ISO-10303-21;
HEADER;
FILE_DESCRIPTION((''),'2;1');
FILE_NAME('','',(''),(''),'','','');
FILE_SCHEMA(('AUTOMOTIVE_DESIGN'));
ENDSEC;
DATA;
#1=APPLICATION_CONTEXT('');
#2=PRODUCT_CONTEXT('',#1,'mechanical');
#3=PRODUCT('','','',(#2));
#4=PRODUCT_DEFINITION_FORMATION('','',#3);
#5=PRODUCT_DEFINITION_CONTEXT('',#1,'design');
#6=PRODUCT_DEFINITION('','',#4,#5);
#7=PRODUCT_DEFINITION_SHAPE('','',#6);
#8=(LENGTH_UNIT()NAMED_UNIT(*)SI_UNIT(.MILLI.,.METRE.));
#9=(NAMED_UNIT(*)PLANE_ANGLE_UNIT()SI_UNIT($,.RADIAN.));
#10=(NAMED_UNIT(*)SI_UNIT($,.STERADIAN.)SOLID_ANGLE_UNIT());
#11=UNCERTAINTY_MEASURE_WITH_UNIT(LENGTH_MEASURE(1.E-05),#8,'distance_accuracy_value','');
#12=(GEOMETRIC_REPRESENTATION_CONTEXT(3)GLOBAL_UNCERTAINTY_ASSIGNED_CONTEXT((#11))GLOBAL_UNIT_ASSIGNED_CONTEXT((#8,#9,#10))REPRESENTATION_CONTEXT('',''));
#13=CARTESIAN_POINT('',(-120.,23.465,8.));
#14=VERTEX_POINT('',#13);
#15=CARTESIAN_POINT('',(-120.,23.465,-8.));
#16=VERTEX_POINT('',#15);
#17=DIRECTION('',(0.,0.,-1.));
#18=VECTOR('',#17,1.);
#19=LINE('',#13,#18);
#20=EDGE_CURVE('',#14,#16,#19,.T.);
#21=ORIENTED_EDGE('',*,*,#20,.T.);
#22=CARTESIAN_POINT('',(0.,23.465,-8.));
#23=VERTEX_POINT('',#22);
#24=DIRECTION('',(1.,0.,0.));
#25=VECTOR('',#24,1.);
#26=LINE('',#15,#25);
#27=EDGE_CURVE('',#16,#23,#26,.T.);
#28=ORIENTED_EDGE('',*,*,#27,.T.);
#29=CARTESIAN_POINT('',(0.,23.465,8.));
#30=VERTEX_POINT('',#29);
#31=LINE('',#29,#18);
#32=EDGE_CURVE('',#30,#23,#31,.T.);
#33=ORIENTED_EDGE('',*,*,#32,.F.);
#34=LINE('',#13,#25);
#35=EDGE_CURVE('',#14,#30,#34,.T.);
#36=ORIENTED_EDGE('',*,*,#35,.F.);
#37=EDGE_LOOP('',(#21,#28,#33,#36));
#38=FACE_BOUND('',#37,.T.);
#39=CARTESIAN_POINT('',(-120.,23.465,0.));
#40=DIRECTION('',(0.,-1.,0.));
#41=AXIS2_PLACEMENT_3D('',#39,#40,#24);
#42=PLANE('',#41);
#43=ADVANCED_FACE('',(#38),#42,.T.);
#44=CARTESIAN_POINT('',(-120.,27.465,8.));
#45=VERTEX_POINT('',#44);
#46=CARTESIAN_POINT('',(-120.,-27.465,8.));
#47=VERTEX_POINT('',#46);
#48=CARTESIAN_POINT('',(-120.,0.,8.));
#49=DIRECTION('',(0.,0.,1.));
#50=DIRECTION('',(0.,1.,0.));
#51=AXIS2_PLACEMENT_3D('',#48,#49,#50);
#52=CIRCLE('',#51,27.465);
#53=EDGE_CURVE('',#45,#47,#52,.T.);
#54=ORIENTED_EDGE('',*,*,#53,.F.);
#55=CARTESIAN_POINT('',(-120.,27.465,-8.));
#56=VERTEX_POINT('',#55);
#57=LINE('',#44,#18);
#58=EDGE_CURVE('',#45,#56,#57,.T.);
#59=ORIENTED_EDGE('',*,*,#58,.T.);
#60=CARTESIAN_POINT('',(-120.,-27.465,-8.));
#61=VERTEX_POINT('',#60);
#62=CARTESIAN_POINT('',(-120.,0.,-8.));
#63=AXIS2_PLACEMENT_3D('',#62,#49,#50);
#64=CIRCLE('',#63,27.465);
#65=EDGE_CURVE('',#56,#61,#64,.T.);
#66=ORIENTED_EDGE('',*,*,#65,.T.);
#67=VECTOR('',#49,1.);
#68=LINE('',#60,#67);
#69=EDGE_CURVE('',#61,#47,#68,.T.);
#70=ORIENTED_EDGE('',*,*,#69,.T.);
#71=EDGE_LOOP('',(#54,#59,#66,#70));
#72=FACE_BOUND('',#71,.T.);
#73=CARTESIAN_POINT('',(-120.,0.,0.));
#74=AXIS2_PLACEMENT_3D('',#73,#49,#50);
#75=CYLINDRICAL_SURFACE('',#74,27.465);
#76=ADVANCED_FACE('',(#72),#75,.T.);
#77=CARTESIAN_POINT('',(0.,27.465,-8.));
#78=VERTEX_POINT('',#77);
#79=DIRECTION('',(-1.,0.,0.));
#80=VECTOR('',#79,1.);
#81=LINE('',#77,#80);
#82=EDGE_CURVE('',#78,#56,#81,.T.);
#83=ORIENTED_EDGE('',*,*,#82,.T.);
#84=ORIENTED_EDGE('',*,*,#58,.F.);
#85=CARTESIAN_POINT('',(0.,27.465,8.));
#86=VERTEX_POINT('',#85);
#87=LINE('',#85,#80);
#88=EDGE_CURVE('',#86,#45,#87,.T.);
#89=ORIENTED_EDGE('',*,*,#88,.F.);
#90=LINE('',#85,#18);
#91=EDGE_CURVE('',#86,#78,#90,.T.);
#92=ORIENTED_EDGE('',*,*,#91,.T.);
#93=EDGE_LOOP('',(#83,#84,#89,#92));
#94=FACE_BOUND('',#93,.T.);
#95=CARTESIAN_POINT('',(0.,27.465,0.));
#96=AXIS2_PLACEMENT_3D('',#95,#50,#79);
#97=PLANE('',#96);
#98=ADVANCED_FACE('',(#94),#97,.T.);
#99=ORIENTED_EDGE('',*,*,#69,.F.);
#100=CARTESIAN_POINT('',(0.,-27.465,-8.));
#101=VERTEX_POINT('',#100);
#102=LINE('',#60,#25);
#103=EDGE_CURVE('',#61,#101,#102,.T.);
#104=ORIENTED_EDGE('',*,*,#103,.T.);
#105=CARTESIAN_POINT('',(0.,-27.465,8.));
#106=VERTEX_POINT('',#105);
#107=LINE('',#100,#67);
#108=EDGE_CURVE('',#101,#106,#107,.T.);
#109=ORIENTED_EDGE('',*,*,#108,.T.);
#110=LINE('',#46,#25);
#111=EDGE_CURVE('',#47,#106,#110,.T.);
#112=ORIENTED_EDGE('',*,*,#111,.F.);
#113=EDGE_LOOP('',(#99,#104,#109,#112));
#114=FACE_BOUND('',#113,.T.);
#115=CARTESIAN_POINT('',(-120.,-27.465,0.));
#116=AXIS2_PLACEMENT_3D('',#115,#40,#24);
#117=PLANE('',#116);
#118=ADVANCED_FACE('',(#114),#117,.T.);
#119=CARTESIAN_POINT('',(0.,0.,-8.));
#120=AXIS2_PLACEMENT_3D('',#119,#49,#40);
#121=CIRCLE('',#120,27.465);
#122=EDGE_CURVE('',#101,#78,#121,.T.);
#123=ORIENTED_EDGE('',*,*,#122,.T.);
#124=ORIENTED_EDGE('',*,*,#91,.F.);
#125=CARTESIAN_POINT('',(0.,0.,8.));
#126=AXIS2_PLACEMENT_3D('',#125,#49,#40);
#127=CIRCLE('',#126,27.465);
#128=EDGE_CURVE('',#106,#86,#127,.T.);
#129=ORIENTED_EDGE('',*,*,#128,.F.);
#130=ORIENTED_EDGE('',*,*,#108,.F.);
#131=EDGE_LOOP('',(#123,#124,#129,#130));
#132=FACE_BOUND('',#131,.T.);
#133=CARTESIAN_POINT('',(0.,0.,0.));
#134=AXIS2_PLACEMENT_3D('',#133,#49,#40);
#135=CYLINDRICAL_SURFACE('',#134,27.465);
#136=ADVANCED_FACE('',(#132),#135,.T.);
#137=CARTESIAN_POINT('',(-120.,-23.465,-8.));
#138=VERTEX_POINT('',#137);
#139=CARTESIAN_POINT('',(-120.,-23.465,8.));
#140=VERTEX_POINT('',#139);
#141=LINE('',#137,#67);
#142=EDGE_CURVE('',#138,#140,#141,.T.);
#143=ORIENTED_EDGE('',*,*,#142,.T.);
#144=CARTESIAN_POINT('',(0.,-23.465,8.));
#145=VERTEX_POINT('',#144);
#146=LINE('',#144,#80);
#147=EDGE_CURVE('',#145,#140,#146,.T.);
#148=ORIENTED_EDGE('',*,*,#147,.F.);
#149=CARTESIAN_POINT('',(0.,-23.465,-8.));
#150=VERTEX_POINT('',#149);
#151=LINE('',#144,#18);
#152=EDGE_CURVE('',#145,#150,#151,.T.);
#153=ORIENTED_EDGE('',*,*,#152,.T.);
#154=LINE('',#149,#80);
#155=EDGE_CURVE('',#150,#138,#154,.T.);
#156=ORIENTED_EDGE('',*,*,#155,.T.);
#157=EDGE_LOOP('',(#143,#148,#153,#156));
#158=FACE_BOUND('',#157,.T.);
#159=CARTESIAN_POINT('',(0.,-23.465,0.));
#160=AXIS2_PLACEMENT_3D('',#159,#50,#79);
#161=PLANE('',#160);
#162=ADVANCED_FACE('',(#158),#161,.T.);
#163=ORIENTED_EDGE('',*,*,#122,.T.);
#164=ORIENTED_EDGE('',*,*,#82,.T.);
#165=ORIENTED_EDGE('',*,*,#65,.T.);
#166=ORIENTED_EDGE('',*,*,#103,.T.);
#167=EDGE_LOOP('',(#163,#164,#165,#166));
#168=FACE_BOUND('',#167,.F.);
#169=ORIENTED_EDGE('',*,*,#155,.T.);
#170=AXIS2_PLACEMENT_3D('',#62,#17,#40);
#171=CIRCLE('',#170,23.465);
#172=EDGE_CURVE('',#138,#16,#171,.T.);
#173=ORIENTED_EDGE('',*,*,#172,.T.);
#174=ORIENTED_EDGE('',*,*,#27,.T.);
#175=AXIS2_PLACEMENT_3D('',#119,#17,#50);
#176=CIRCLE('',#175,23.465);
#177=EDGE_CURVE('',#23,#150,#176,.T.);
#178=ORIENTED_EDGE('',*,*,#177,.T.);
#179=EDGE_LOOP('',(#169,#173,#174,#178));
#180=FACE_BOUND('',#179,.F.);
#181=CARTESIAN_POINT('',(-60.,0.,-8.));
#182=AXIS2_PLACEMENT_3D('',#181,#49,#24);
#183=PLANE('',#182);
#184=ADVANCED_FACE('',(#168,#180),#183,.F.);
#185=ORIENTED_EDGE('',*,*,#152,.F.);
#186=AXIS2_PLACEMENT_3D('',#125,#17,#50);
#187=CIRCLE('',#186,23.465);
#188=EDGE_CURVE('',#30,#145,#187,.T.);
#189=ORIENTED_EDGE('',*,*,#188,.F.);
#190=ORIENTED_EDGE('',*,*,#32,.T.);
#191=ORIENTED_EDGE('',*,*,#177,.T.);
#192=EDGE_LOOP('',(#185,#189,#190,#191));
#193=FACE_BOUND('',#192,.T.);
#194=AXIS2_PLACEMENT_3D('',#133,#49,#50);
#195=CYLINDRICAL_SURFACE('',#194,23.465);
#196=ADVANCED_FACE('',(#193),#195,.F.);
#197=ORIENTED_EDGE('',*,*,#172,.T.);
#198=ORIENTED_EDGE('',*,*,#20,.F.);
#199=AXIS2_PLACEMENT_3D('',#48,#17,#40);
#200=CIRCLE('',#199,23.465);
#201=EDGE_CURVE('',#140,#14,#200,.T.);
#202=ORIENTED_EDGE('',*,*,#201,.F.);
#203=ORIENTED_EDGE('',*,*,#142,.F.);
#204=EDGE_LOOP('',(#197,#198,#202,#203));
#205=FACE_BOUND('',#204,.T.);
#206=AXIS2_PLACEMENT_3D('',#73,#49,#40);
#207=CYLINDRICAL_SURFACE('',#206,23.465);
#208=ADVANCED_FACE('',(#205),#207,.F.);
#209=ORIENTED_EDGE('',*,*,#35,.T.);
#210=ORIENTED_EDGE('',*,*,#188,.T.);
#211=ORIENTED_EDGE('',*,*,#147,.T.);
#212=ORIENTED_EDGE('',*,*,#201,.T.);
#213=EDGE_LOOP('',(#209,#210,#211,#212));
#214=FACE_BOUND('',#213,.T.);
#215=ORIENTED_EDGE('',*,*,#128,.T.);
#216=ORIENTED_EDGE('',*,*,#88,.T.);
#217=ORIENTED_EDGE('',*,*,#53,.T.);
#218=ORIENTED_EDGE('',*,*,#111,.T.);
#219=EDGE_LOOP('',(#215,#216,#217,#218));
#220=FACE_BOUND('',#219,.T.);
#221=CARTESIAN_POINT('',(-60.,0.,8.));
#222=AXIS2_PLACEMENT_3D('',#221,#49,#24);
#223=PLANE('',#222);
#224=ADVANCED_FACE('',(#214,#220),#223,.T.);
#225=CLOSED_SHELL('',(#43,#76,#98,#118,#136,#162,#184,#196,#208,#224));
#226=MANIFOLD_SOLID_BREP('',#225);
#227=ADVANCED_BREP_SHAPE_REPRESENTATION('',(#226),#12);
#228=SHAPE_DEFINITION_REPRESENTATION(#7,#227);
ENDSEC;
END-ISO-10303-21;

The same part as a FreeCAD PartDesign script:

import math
import FreeCAD as App
import Part
import Sketcher

V = App.Vector
Q = App.Units.Quantity

doc = App.newDocument("Part")
params = doc.addObject("Spreadsheet::Sheet", "Params")
for row, (alias, value) in enumerate([
    ("sketch1_width", "120 mm"),
    ("pad1_length", "16 mm"),
], start=1):
    params.set(f"A{row}", alias)
    params.set(f"B{row}", "=" + value)
    params.setAlias(f"B{row}", alias)

body = doc.addObject("PartDesign::Body", "Body")

sketch1 = body.newObject("Sketcher::SketchObject", "Sketch")
sketch1.AttachmentSupport = (doc.getObject("XY_Plane"), [""])
sketch1.MapMode = "FlatFace"
sketch1.addGeometry([
    Part.ArcOfCircle(Part.Circle(V(-120, 0, 0), V(0, 0, 1), 27), math.radians(90), math.radians(270)),
    Part.LineSegment(V(-120, -27, 0), V(0, -27, 0)),
    Part.ArcOfCircle(Part.Circle(V(0, 0, 0), V(0, 0, 1), 27), math.radians(-90), math.radians(90)),
    Part.LineSegment(V(0, 27, 0), V(-120, 27, 0)),
    Part.LineSegment(V(0, -23, 0), V(-120, -23, 0)),
    Part.ArcOfCircle(Part.Circle(V(-120, 0, 0), V(0, 0, 1), 23), math.radians(90), math.radians(270)),
    Part.LineSegment(V(-120, 23, 0), V(0, 23, 0)),
    Part.ArcOfCircle(Part.Circle(V(0, 0, 0), V(0, 0, 1), 23), math.radians(-90), math.radians(90)),
], False)
sketch1.addConstraint([
    Sketcher.Constraint("Tangent", 0, 2, 1, 1),
    Sketcher.Constraint("Tangent", 1, 2, 2, 1),
    Sketcher.Constraint("Tangent", 2, 2, 3, 1),
    Sketcher.Constraint("Tangent", 3, 2, 0, 1),
    Sketcher.Constraint("Tangent", 4, 2, 5, 2),
    Sketcher.Constraint("Tangent", 5, 1, 6, 1),
    Sketcher.Constraint("Tangent", 6, 2, 7, 2),
    Sketcher.Constraint("Tangent", 7, 1, 4, 1),
    Sketcher.Constraint("Horizontal", 1),
    Sketcher.Constraint("Horizontal", 3),
    Sketcher.Constraint("Horizontal", 4),
    Sketcher.Constraint("Horizontal", 6),
    Sketcher.Constraint("Coincident", 2, 3, -1, 1),
    Sketcher.Constraint("Coincident", 7, 3, -1, 1),
    Sketcher.Constraint("Vertical", 5, 3, 0, 2),
    Sketcher.Constraint("DistanceX", 1, 1, 1, 2, Q("120 mm")),
    Sketcher.Constraint("Radius", 0, Q("27.465 mm")),
    Sketcher.Constraint("Radius", 5, Q("23.465 mm")),
])
sketch1.setExpression("Constraints[15]", "Params.sketch1_width")
pad1 = body.newObject("PartDesign::Pad", "Pad")
pad1.Profile = sketch1
pad1.setExpression("Length", "Params.pad1_length")
pad1.Midplane = True

doc.recompute()
